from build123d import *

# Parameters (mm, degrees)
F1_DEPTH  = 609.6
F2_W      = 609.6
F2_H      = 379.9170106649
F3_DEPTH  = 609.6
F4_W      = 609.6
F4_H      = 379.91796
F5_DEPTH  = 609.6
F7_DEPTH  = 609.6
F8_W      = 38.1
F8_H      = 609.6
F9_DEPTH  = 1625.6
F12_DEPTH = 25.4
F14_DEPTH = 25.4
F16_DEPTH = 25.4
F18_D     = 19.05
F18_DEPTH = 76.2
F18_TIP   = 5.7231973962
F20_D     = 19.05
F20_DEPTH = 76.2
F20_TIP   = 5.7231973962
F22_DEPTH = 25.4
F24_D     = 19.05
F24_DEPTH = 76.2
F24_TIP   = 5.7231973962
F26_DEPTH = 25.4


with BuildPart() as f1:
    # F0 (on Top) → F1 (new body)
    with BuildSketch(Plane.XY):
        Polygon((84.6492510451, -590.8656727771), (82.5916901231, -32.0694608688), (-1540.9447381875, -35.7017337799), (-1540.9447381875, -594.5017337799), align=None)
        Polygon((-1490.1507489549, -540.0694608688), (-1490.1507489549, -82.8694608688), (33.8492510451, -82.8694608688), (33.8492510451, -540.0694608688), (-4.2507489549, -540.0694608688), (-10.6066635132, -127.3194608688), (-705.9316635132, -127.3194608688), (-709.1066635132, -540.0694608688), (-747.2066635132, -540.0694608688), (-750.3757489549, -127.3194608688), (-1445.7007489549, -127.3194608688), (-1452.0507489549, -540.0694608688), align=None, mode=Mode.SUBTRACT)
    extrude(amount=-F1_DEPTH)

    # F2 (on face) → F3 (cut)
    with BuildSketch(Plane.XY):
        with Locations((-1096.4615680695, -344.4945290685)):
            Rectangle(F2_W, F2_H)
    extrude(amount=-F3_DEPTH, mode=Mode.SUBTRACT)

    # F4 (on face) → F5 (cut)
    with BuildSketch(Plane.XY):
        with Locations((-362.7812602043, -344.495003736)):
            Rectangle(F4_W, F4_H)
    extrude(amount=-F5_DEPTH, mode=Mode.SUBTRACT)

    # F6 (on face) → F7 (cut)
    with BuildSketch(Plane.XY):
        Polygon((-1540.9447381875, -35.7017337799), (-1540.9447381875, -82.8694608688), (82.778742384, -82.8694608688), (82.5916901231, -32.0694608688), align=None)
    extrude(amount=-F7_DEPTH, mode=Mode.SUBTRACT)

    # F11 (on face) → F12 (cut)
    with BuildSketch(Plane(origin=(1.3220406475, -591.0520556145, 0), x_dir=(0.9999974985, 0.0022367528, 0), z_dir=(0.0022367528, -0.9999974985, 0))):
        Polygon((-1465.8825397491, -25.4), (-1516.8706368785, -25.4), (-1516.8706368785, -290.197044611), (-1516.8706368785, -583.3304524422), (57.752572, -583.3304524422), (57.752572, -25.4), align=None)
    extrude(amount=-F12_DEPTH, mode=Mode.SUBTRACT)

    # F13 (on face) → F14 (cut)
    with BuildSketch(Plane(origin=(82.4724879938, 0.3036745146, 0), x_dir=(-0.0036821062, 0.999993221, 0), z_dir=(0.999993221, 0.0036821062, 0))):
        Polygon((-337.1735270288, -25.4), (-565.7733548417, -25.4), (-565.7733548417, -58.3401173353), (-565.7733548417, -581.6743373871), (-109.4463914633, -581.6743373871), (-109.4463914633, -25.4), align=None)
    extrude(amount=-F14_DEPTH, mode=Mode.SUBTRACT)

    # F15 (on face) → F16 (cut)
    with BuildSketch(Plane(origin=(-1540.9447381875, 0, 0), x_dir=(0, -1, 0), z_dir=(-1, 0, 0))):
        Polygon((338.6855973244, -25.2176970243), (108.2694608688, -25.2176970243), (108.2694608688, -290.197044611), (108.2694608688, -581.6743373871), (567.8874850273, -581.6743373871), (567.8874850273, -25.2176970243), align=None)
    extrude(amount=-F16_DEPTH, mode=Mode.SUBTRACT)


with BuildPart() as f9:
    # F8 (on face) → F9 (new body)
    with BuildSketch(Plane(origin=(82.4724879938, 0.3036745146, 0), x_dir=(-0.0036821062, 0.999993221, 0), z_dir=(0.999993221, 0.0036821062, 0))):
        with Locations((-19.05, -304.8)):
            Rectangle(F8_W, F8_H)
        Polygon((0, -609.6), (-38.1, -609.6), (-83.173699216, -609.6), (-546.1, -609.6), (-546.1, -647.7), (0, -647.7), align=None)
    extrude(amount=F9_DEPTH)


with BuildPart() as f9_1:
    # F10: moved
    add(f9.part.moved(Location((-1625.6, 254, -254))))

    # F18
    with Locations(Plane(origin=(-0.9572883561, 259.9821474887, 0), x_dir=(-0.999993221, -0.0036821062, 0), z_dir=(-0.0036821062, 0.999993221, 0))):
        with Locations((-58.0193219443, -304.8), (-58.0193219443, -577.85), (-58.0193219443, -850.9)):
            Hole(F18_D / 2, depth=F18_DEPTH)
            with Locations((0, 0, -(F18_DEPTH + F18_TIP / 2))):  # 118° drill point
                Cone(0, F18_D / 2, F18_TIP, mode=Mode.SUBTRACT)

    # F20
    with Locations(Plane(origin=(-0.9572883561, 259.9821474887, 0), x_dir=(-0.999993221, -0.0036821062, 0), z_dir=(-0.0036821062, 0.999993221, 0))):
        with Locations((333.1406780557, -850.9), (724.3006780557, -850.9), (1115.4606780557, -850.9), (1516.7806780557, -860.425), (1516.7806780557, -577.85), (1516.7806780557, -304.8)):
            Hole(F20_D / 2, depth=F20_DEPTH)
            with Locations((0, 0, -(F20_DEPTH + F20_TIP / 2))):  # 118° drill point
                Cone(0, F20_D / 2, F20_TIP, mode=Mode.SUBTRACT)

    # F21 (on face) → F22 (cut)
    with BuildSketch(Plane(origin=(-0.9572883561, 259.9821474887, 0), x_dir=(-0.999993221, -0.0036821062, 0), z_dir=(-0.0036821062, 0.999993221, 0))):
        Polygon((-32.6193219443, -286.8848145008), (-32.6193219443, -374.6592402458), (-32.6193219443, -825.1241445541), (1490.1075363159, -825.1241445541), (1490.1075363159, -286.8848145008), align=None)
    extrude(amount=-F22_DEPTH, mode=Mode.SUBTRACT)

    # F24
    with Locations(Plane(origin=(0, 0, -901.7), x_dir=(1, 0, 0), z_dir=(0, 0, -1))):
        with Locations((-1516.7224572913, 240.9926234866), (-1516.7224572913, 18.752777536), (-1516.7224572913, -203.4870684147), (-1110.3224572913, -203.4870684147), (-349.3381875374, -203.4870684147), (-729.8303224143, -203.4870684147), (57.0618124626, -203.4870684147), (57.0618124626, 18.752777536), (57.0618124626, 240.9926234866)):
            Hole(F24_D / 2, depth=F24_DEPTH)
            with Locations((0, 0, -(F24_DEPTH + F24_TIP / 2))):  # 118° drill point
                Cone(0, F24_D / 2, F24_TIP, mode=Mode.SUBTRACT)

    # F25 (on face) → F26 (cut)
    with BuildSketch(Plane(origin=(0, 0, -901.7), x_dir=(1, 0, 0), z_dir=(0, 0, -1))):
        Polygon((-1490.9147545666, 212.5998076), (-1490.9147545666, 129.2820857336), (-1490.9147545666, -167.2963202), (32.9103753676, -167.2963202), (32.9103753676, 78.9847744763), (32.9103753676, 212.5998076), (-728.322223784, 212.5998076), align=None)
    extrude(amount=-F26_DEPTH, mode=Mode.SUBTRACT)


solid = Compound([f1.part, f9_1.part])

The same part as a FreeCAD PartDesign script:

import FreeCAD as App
import Part
import Sketcher
from FreeCAD import Vector
Q = App.Units.Quantity

doc = App.newDocument("Part")
body = doc.addObject("PartDesign::Body", "Body")

# Sketch on XY plane
sketch1 = body.newObject("Sketcher::SketchObject", "Sketch")
sketch1.AttachmentSupport = (doc.getObject("XY_Plane"), [""])
sketch1.MapMode = "FlatFace"
sketch1.addGeometry([
    Part.LineSegment(Vector(84.649251, -590.865673, 0), Vector(82.59169, -32.069461, 0)),  # 0
    Part.LineSegment(Vector(82.59169, -32.069461, 0), Vector(-1540.944738, -35.701734, 0)),  # 1
    Part.LineSegment(Vector(-1540.944738, -35.701734, 0), Vector(-1540.944738, -594.501734, 0)),  # 2
    Part.LineSegment(Vector(-1540.944738, -594.501734, 0), Vector(84.649251, -590.865673, 0)),  # 3
    Part.LineSegment(Vector(-1452.050749, -540.069461, 0), Vector(-1490.150749, -540.069461, 0)),  # 4
    Part.LineSegment(Vector(-1490.150749, -540.069461, 0), Vector(-1490.150749, -82.869461, 0)),  # 5
    Part.LineSegment(Vector(-1490.150749, -82.869461, 0), Vector(33.849251, -82.869461, 0)),  # 6
    Part.LineSegment(Vector(33.849251, -82.869461, 0), Vector(33.849251, -540.069461, 0)),  # 7
    Part.LineSegment(Vector(33.849251, -540.069461, 0), Vector(-4.250749, -540.069461, 0)),  # 8
    Part.LineSegment(Vector(-4.250749, -540.069461, 0), Vector(-10.606664, -127.319461, 0)),  # 9
    Part.LineSegment(Vector(-10.606664, -127.319461, 0), Vector(-705.931664, -127.319461, 0)),  # 10
    Part.LineSegment(Vector(-705.931664, -127.319461, 0), Vector(-709.106664, -540.069461, 0)),  # 11
    Part.LineSegment(Vector(-709.106664, -540.069461, 0), Vector(-747.206664, -540.069461, 0)),  # 12
    Part.LineSegment(Vector(-747.206664, -540.069461, 0), Vector(-750.375749, -127.319461, 0)),  # 13
    Part.LineSegment(Vector(-750.375749, -127.319461, 0), Vector(-1445.700749, -127.319461, 0)),  # 14
    Part.LineSegment(Vector(-1445.700749, -127.319461, 0), Vector(-1452.050749, -540.069461, 0)),  # 15
], False)
sketch1.addConstraint([
    Sketcher.Constraint("Coincident", 0, 2, 1, 1),
    Sketcher.Constraint("Coincident", 1, 2, 2, 1),
    Sketcher.Constraint("Coincident", 2, 2, 3, 1),
    Sketcher.Constraint("Coincident", 3, 2, 0, 1),
    Sketcher.Constraint("Coincident", 4, 2, 5, 1),
    Sketcher.Constraint("Coincident", 5, 2, 6, 1),
    Sketcher.Constraint("Coincident", 6, 2, 7, 1),
    Sketcher.Constraint("Coincident", 7, 2, 8, 1),
    Sketcher.Constraint("Coincident", 8, 2, 9, 1),
    Sketcher.Constraint("Coincident", 9, 2, 10, 1),
    Sketcher.Constraint("Coincident", 10, 2, 11, 1),
    Sketcher.Constraint("Coincident", 11, 2, 12, 1),
    Sketcher.Constraint("Coincident", 12, 2, 13, 1),
    Sketcher.Constraint("Coincident", 13, 2, 14, 1),
    Sketcher.Constraint("Coincident", 14, 2, 15, 1),
    Sketcher.Constraint("Coincident", 15, 2, 4, 1),
    Sketcher.Constraint("Vertical", 2),
    Sketcher.Constraint("Horizontal", 4),
    Sketcher.Constraint("Vertical", 5),
    Sketcher.Constraint("Horizontal", 6),
    Sketcher.Constraint("Vertical", 7),
    Sketcher.Constraint("Horizontal", 8),
    Sketcher.Constraint("Horizontal", 10),
    Sketcher.Constraint("Horizontal", 12),
    Sketcher.Constraint("Horizontal", 14),
    Sketcher.Constraint("DistanceX", 6, 1, 6, 2, Q("60 in")),
    Sketcher.Constraint("DistanceY", 2, 2, 2, 1, Q("22 in")),
    Sketcher.Constraint("DistanceY", 5, 1, 5, 2, Q("18 in")),
    Sketcher.Constraint("DistanceY", 7, 2, 7, 1, Q("18 in")),
    Sketcher.Constraint("Distance", 0, Q("22 in")),
    Sketcher.Constraint("DistanceX", 4, 2, 4, 1, Q("1.5 in")),
    Sketcher.Constraint("DistanceX", 8, 2, 8, 1, Q("1.5 in")),
    Sketcher.Constraint("DistanceX", 12, 2, 12, 1, Q("1.5 in")),
    Sketcher.Constraint("DistanceX", 4, 2, 3, 2, Q("62 in")),
    Sketcher.Constraint("DistanceY", 4, 2, 0, 2, Q("20 in")),
    Sketcher.Constraint("DistanceX", 10, 2, 10, 1, Q("27.375 in")),
    Sketcher.Constraint("DistanceX", 14, 2, 14, 1, Q("27.375 in")),
    Sketcher.Constraint("DistanceY", 9, 2, 6, 2, Q("1.75 in")),
    Sketcher.Constraint("DistanceY", 11, 2, 10, 2, Q("16.25 in")),
    Sketcher.Constraint("DistanceY", 12, 2, 13, 2, Q("16.25 in")),
    Sketcher.Constraint("DistanceX", 5, 2, 14, 2, Q("1.75 in")),
    Sketcher.Constraint("DistanceX", 11, 2, 10, 2, Q("0.125 in")),
    Sketcher.Constraint("Distance", 1, 1623.540491),
    Sketcher.Constraint("DistanceX", -1, 1, 0, 2, 82.59169),
    Sketcher.Constraint("DistanceY", 0, 2, -1, 1, 32.069461),
    Sketcher.Constraint("DistanceX", -1, 1, 3, 2, 84.649251),
    Sketcher.Constraint("DistanceY", 2, 2, 3, 2, 3.636061),
    Sketcher.Constraint("Distance", 9, 412.798934),
])
pad1 = body.newObject("PartDesign::Pad", "Pad")
pad1.Profile = sketch1
pad1.Length = Q("24 in")
pad1.Reversed = True

# Sketch on XY plane
sketch2 = body.newObject("Sketcher::SketchObject", "Sketch001")
sketch2.AttachmentSupport = (doc.getObject("XY_Plane"), [""])
sketch2.MapMode = "FlatFace"
sketch2.addGeometry([
    Part.LineSegment(Vector(-1401, -155, 0), Vector(-1401, -534, 0)),
    Part.LineSegment(Vector(-1401, -534, 0), Vector(-792, -534, 0)),
    Part.LineSegment(Vector(-792, -534, 0), Vector(-792, -155, 0)),
    Part.LineSegment(Vector(-792, -155, 0), Vector(-1401, -155, 0)),
], False)
sketch2.addConstraint([
    Sketcher.Constraint("Coincident", 0, 2, 1, 1),
    Sketcher.Constraint("Coincident", 1, 2, 2, 1),
    Sketcher.Constraint("Coincident", 2, 2, 3, 1),
    Sketcher.Constraint("Coincident", 3, 2, 0, 1),
    Sketcher.Constraint("Vertical", 0),
    Sketcher.Constraint("Horizontal", 1),
    Sketcher.Constraint("Vertical", 2),
    Sketcher.Constraint("Horizontal", 3),
    Sketcher.Constraint("DistanceX", 1, 1, 1, 2, Q("24 in")),
    Sketcher.Constraint("DistanceY", 0, 2, 0, 1, 379.917011),
    Sketcher.Constraint("DistanceX", 0, 2, -1, 1, 1401.261568),
    Sketcher.Constraint("DistanceY", 0, 2, -1, 1, 534.453034),
])
pocket1 = body.newObject("PartDesign::Pocket", "Pocket")
pocket1.Profile = sketch2
pocket1.Length = Q("24 in")

# Sketch on XY plane
sketch3 = body.newObject("Sketcher::SketchObject", "Sketch002")
sketch3.AttachmentSupport = (doc.getObject("XY_Plane"), [""])
sketch3.MapMode = "FlatFace"
sketch3.addGeometry([
    Part.LineSegment(Vector(-668, -155, 0), Vector(-668, -534, 0)),
    Part.LineSegment(Vector(-668, -534, 0), Vector(-58, -534, 0)),
    Part.LineSegment(Vector(-58, -534, 0), Vector(-58, -155, 0)),
    Part.LineSegment(Vector(-58, -155, 0), Vector(-668, -155, 0)),
], False)
sketch3.addConstraint([
    Sketcher.Constraint("Coincident", 0, 2, 1, 1),
    Sketcher.Constraint("Coincident", 1, 2, 2, 1),
    Sketcher.Constraint("Coincident", 2, 2, 3, 1),
    Sketcher.Constraint("Coincident", 3, 2, 0, 1),
    Sketcher.Constraint("Vertical", 0),
    Sketcher.Constraint("Horizontal", 1),
    Sketcher.Constraint("Vertical", 2),
    Sketcher.Constraint("Horizontal", 3),
    Sketcher.Constraint("DistanceX", 1, 1, 1, 2, Q("24 in")),
    Sketcher.Constraint("DistanceY", 0, 2, 0, 1, Q("14.9574 in")),
    Sketcher.Constraint("DistanceX", 0, 2, -1, 1, 667.58126),
    Sketcher.Constraint("DistanceY", 0, 2, -1, 1, 534.453984),
])
pocket2 = body.newObject("PartDesign::Pocket", "Pocket001")
pocket2.Profile = sketch3
pocket2.Length = Q("24 in")

# Sketch on XY plane
sketch4 = body.newObject("Sketcher::SketchObject", "Sketch003")
sketch4.AttachmentSupport = (doc.getObject("XY_Plane"), [""])
sketch4.MapMode = "FlatFace"
sketch4.addGeometry([
    Part.LineSegment(Vector(-1541, -36, 0), Vector(-1541, -83, 0)),
    Part.LineSegment(Vector(-1541, -83, 0), Vector(83, -83, 0)),
    Part.LineSegment(Vector(83, -83, 0), Vector(83, -32, 0)),
    Part.LineSegment(Vector(83, -32, 0), Vector(-1541, -36, 0)),
], False)
sketch4.addConstraint([
    Sketcher.Constraint("Coincident", 0, 2, 1, 1),
    Sketcher.Constraint("Coincident", 1, 2, 2, 1),
    Sketcher.Constraint("Coincident", 2, 2, 3, 1),
    Sketcher.Constraint("Coincident", 3, 2, 0, 1),
    Sketcher.Constraint("Vertical", 0),
    Sketcher.Constraint("Horizontal", 1),
    Sketcher.Constraint("DistanceY", 1, 2, 2, 2, Q("2 in")),
    Sketcher.Constraint("DistanceX", 1, 1, 1, 2, 1623.723481),
    Sketcher.Constraint("Distance", 3, 1623.540491),
    Sketcher.Constraint("DistanceY", 0, 2, 0, 1, 47.167727),
    Sketcher.Constraint("DistanceX", 0, 2, -1, 1, 1540.944738),
    Sketcher.Constraint("DistanceY", 0, 2, -1, 1, 82.869461),
])
pocket3 = body.newObject("PartDesign::Pocket", "Pocket002")
pocket3.Profile = sketch4
pocket3.Length = Q("24 in")

# Sketch on an angled plane
sketch5 = body.newObject("Sketcher::SketchObject", "Sketch004")
sketch5.Placement = App.Placement(Vector(1.322041, -591.052056, 0), App.Rotation(Vector(0.999997498, 0.002236753, 0), Vector(0, 0, 0.999999999), Vector(0.002236753, -0.999997498, 0), "ZXY"))
sketch5.addGeometry([
    Part.LineSegment(Vector(-1517, -25, 0), Vector(-1517, -583, 0)),
    Part.LineSegment(Vector(-1517, -583, 0), Vector(58, -583, 0)),
    Part.LineSegment(Vector(58, -583, 0), Vector(58, -25, 0)),
    Part.LineSegment(Vector(58, -25, 0), Vector(-1517, -25, 0)),
], False)
sketch5.addConstraint([
    Sketcher.Constraint("Coincident", 0, 2, 1, 1),
    Sketcher.Constraint("Coincident", 1, 2, 2, 1),
    Sketcher.Constraint("Coincident", 2, 2, 3, 1),
    Sketcher.Constraint("Coincident", 3, 2, 0, 1),
    Sketcher.Constraint("Vertical", 0),
    Sketcher.Constraint("Horizontal", 1),
    Sketcher.Constraint("Vertical", 2),
    Sketcher.Constraint("Horizontal", 3),
    Sketcher.Constraint("DistanceY", 2, 2, -1, 1, Q("1 in")),
    Sketcher.Constraint("DistanceY", 0, 2, 0, 1, 557.930451),
    Sketcher.Constraint("DistanceX", 1, 1, 1, 2, 1574.623207),
    Sketcher.Constraint("DistanceX", -1, 1, 1, 2, 57.752572),
])
pocket4 = body.newObject("PartDesign::Pocket", "Pocket003")
pocket4.Profile = sketch5
pocket4.Length = Q("1 in")

# Sketch on an angled plane
sketch6 = body.newObject("Sketcher::SketchObject", "Sketch005")
sketch6.Placement = App.Placement(Vector(82.472488, 0.303675, 0), App.Rotation(Vector(-0.003682106, 0.999993221, 0), Vector(0, 0, 1), Vector(0.999993221, 0.003682106, 0), "ZXY"))
sketch6.addGeometry([
    Part.LineSegment(Vector(-566, -25, 0), Vector(-566, -582, 0)),
    Part.LineSegment(Vector(-566, -582, 0), Vector(-109, -582, 0)),
    Part.LineSegment(Vector(-109, -582, 0), Vector(-109, -25, 0)),
    Part.LineSegment(Vector(-109, -25, 0), Vector(-566, -25, 0)),
], False)
sketch6.addConstraint([
    Sketcher.Constraint("Coincident", 0, 2, 1, 1),
    Sketcher.Constraint("Coincident", 1, 2, 2, 1),
    Sketcher.Constraint("Coincident", 2, 2, 3, 1),
    Sketcher.Constraint("Coincident", 3, 2, 0, 1),
    Sketcher.Constraint("Vertical", 0),
    Sketcher.Constraint("Horizontal", 1),
    Sketcher.Constraint("Vertical", 2),
    Sketcher.Constraint("Horizontal", 3),
    Sketcher.Constraint("DistanceY", 2, 2, -1, 1, Q("1 in")),
    Sketcher.Constraint("DistanceX", 1, 1, 1, 2, 456.326963),
    Sketcher.Constraint("DistanceY", 0, 2, 0, 1, 556.274337),
    Sketcher.Constraint("DistanceX", 1, 2, -1, 1, 109.446391),
])
pocket5 = body.newObject("PartDesign::Pocket", "Pocket004")
pocket5.Profile = sketch6
pocket5.Length = Q("1 in")

# Sketch on YZ plane
sketch7 = body.newObject("Sketcher::SketchObject", "Sketch006")
sketch7.AttachmentSupport = (doc.getObject("YZ_Plane"), [""])
sketch7.MapMode = "FlatFace"
sketch7.AttachmentOffset = App.Placement(Vector(0, 0, -1540.944738), App.Rotation())
sketch7.addGeometry([
    Part.LineSegment(Vector(-108, -25, 0), Vector(-108, -582, 0)),
    Part.LineSegment(Vector(-108, -582, 0), Vector(-568, -582, 0)),
    Part.LineSegment(Vector(-568, -582, 0), Vector(-568, -25, 0)),
    Part.LineSegment(Vector(-568, -25, 0), Vector(-108, -25, 0)),
], False)
sketch7.addConstraint([
    Sketcher.Constraint("Coincident", 0, 2, 1, 1),
    Sketcher.Constraint("Coincident", 1, 2, 2, 1),
    Sketcher.Constraint("Coincident", 2, 2, 3, 1),
    Sketcher.Constraint("Coincident", 3, 2, 0, 1),
    Sketcher.Constraint("Vertical", 0),
    Sketcher.Constraint("Horizontal", 1),
    Sketcher.Constraint("Vertical", 2),
    Sketcher.Constraint("Horizontal", 3),
    Sketcher.Constraint("DistanceY", 0, 2, 0, 1, 556.45664),
    Sketcher.Constraint("DistanceX", 1, 2, 1, 1, 459.618024),
    Sketcher.Constraint("DistanceX", 0, 2, -1, 1, 108.269461),
    Sketcher.Constraint("DistanceY", 0, 2, -1, 1, 581.674337),
])
pocket6 = body.newObject("PartDesign::Pocket", "Pocket005")
pocket6.Profile = sketch7
pocket6.Length = Q("1 in")
pocket6.Reversed = True
body2 = doc.addObject("PartDesign::Body", "Body001")

# Sketch on an angled plane
sketch8 = body2.newObject("Sketcher::SketchObject", "Sketch007")
sketch8.Placement = App.Placement(Vector(82.472488, 0.303675, 0), App.Rotation(Vector(-0.003682106, 0.999993221, 0), Vector(0, 0, 1), Vector(0.999993221, 0.003682106, 0), "ZXY"))
sketch8.addGeometry([
    Part.LineSegment(Vector(-38, 0, 0), Vector(-38, -610, 0)),  # 0
    Part.LineSegment(Vector(-38, -610, 0), Vector(-546, -610, 0)),  # 1
    Part.LineSegment(Vector(-546, -610, 0), Vector(-546, -648, 0)),  # 2
    Part.LineSegment(Vector(-546, -648, 0), Vector(0, -648, 0)),  # 3
    Part.LineSegment(Vector(0, -648, 0), Vector(0, 0, 0)),  # 4
    Part.LineSegment(Vector(0, 0, 0), Vector(-38, 0, 0)),  # 5
], False)
sketch8.addConstraint([
    Sketcher.Constraint("Coincident", 0, 2, 1, 1),
    Sketcher.Constraint("Coincident", 1, 2, 2, 1),
    Sketcher.Constraint("Coincident", 2, 2, 3, 1),
    Sketcher.Constraint("Coincident", 3, 2, 4, 1),
    Sketcher.Constraint("Coincident", 4, 2, 5, 1),
    Sketcher.Constraint("Coincident", 5, 2, 0, 1),
    Sketcher.Constraint("Vertical", 0),
    Sketcher.Constraint("Horizontal", 1),
    Sketcher.Constraint("Vertical", 2),
    Sketcher.Constraint("Horizontal", 3),
    Sketcher.Constraint("Vertical", 4),
    Sketcher.Constraint("Horizontal", 5),
    Sketcher.Constraint("Coincident", 4, 2, -1, 1),
    Sketcher.Constraint("Equal", 5, 2),
    Sketcher.Constraint("DistanceX", 1, 2, 1, 1, Q("20 in")),
    Sketcher.Constraint("DistanceY", 0, 2, 0, 1, Q("24 in")),
    Sketcher.Constraint("DistanceX", 3, 1, 3, 2, Q("21.5 in")),
])
pad2 = body2.newObject("PartDesign::Pad", "Pad001")
pad2.Profile = sketch8
pad2.Length = Q("64 in")
body3 = doc.addObject("PartDesign::Body", "Body002")
doc.recompute()

body2.Placement = App.Placement(Vector(-1625.6, 254, -254), App.Rotation(Vector(0, 0, 1), 0))
boolean = body3.newObject("PartDesign::Boolean", "Boolean")
boolean.Type = "Fuse"
boolean.addObjects([body2])

# Sketch on an angled plane
sketch9 = body3.newObject("Sketcher::SketchObject", "Sketch008")
sketch9.Placement = App.Placement(Vector(-0.957288, 259.982147, 0), App.Rotation(Vector(-0.999993221, -0.003682106, 0), Vector(0, 0, 1), Vector(-0.003682106, 0.999993221, 0), "ZXY"))
sketch9.addGeometry([
    Part.Circle(Vector(-58, -305, 0), Vector(0, 0, 1), 10),
    Part.Circle(Vector(-58, -578, 0), Vector(0, 0, 1), 10),
    Part.Circle(Vector(-58, -851, 0), Vector(0, 0, 1), 10),
], False)
sketch9.addConstraint([
    Sketcher.Constraint("Equal", 0, 1),
    Sketcher.Constraint("Equal", 1, 2),
    Sketcher.Constraint("Vertical", 0, 3, 1, 3),
    Sketcher.Constraint("Vertical", 1, 3, 2, 3),
    Sketcher.Constraint("Diameter", 0, Q("0.75 in")),
    Sketcher.Constraint("DistanceY", 0, 3, -1, 1, Q("12 in")),
    Sketcher.Constraint("DistanceY", 2, 3, -1, 1, Q("33.5 in")),
    Sketcher.Constraint("DistanceY", 1, 3, -1, 1, Q("22.75 in")),
    Sketcher.Constraint("DistanceX", 0, 3, -1, 1, 58.019322),
])
doc.recompute()
hole = body3.newObject("PartDesign::Hole", "Hole")
hole.Profile = sketch9
hole.ThreadType = "None"
hole.Diameter = Q("0.75 in")
hole.DepthType = "Dimension"
hole.Depth = Q("3 in")
hole.DrillPoint = "Angled"
hole.DrillPointAngle = 118

# Sketch on an angled plane
sketch10 = body3.newObject("Sketcher::SketchObject", "Sketch009")
sketch10.Placement = App.Placement(Vector(-0.957288, 259.982147, 0), App.Rotation(Vector(-0.999993221, -0.003682106, 0), Vector(0, 0, 1), Vector(-0.003682106, 0.999993221, 0), "ZXY"))
sketch10.addGeometry([
    Part.Circle(Vector(333, -851, 0), Vector(0, 0, 1), 10),  # 0
    Part.Circle(Vector(724, -851, 0), Vector(0, 0, 1), 10),  # 1
    Part.Circle(Vector(1115, -851, 0), Vector(0, 0, 1), 10),  # 2
    Part.Circle(Vector(1517, -860, 0), Vector(0, 0, 1), 10),  # 3
    Part.Circle(Vector(1517, -578, 0), Vector(0, 0, 1), 10),  # 4
    Part.Circle(Vector(1517, -305, 0), Vector(0, 0, 1), 10),  # 5
], False)
sketch10.addConstraint([
    Sketcher.Constraint("Equal", 0, 1),
    Sketcher.Constraint("Equal", 1, 2),
    Sketcher.Constraint("Equal", 2, 3),
    Sketcher.Constraint("Equal", 3, 4),
    Sketcher.Constraint("Equal", 4, 5),
    Sketcher.Constraint("Horizontal", 0, 3, 1, 3),
    Sketcher.Constraint("Horizontal", 1, 3, 2, 3),
    Sketcher.Constraint("Vertical", 3, 3, 4, 3),
    Sketcher.Constraint("Vertical", 4, 3, 5, 3),
    Sketcher.Constraint("Diameter", 0, Q("0.75 in")),
    Sketcher.Constraint("DistanceY", 5, 3, -1, 1, Q("12 in")),
    Sketcher.Constraint("DistanceY", 0, 3, -1, 1, Q("33.5 in")),
    Sketcher.Constraint("DistanceX", 0, 3, 1, 3, Q("15.4 in")),
    Sketcher.Constraint("DistanceX", 1, 3, 2, 3, Q("15.4 in")),
    Sketcher.Constraint("DistanceX", 2, 3, 3, 3, Q("15.8 in")),
    Sketcher.Constraint("DistanceY", 4, 3, -1, 1, Q("22.75 in")),
    Sketcher.Constraint("DistanceY", 3, 3, -1, 1, Q("33.875 in")),
    Sketcher.Constraint("DistanceX", -1, 1, 0, 3, 333.140678),
])
doc.recompute()
hole2 = body3.newObject("PartDesign::Hole", "Hole001")
hole2.Profile = sketch10
hole2.ThreadType = "None"
hole2.Diameter = Q("0.75 in")
hole2.DepthType = "Dimension"
hole2.Depth = Q("3 in")
hole2.DrillPoint = "Angled"
hole2.DrillPointAngle = 118

# Sketch on an angled plane
sketch11 = body3.newObject("Sketcher::SketchObject", "Sketch010")
sketch11.Placement = App.Placement(Vector(-0.957288, 259.982147, 0), App.Rotation(Vector(-0.999993221, -0.003682106, 0), Vector(0, 0, 1), Vector(-0.003682106, 0.999993221, 0), "ZXY"))
sketch11.addGeometry([
    Part.LineSegment(Vector(-33, -287, 0), Vector(-33, -825, 0)),
    Part.LineSegment(Vector(-33, -825, 0), Vector(1490, -825, 0)),
    Part.LineSegment(Vector(1490, -825, 0), Vector(1490, -287, 0)),
    Part.LineSegment(Vector(1490, -287, 0), Vector(-33, -287, 0)),
], False)
sketch11.addConstraint([
    Sketcher.Constraint("Coincident", 0, 2, 1, 1),
    Sketcher.Constraint("Coincident", 1, 2, 2, 1),
    Sketcher.Constraint("Coincident", 2, 2, 3, 1),
    Sketcher.Constraint("Coincident", 3, 2, 0, 1),
    Sketcher.Constraint("Vertical", 0),
    Sketcher.Constraint("Horizontal", 1),
    Sketcher.Constraint("Vertical", 2),
    Sketcher.Constraint("Horizontal", 3),
    Sketcher.Constraint("DistanceX", 1, 1, 1, 2, 1522.726858),
    Sketcher.Constraint("DistanceY", 0, 2, 0, 1, 538.23933),
    Sketcher.Constraint("DistanceX", 0, 2, -1, 1, 32.619322),
    Sketcher.Constraint("DistanceY", 0, 2, -1, 1, 825.124144),
])
pocket7 = body3.newObject("PartDesign::Pocket", "Pocket006")
pocket7.Profile = sketch11
pocket7.Length = Q("1 in")

# Sketch on XY plane
sketch12 = body3.newObject("Sketcher::SketchObject", "Sketch011")
sketch12.AttachmentSupport = (doc.getObject("XY_Plane002"), [""])
sketch12.MapMode = "FlatFace"
sketch12.AttachmentOffset = App.Placement(Vector(0, 0, -35.5 * 25.4), App.Rotation())
sketch12.addGeometry([
    Part.Circle(Vector(-1517, -241, 0), Vector(0, 0, 1), 10),  # 0
    Part.Circle(Vector(-1517, -19, 0), Vector(0, 0, 1), 10),  # 1
    Part.Circle(Vector(-1517, 203, 0), Vector(0, 0, 1), 10),  # 2
    Part.Circle(Vector(-1110, 203, 0), Vector(0, 0, 1), 10),  # 3
    Part.Circle(Vector(-349, 203, 0), Vector(0, 0, 1), 10),  # 4
    Part.Circle(Vector(-730, 203, 0), Vector(0, 0, 1), 10),  # 5
    Part.Circle(Vector(57, 203, 0), Vector(0, 0, 1), 10),  # 6
    Part.Circle(Vector(57, -19, 0), Vector(0, 0, 1), 10),  # 7
    Part.Circle(Vector(57, -241, 0), Vector(0, 0, 1), 10),  # 8
], False)
sketch12.addConstraint([
    Sketcher.Constraint("Equal", 0, 1),
    Sketcher.Constraint("Equal", 1, 2),
    Sketcher.Constraint("Equal", 2, 3),
    Sketcher.Constraint("Equal", 3, 4),
    Sketcher.Constraint("Equal", 4, 5),
    Sketcher.Constraint("Equal", 5, 6),
    Sketcher.Constraint("Equal", 6, 7),
    Sketcher.Constraint("Equal", 7, 8),
    Sketcher.Constraint("Horizontal", 2, 3, 3, 3),
    Sketcher.Constraint("Horizontal", 3, 3, 4, 3),
    Sketcher.Constraint("Horizontal", 4, 3, 5, 3),
    Sketcher.Constraint("Horizontal", 5, 3, 6, 3),
    Sketcher.Constraint("Horizontal", 1, 3, 7, 3),
    Sketcher.Constraint("Horizontal", 0, 3, 8, 3),
    Sketcher.Constraint("Vertical", 0, 3, 1, 3),
    Sketcher.Constraint("Vertical", 1, 3, 2, 3),
    Sketcher.Constraint("Vertical", 6, 3, 7, 3),
    Sketcher.Constraint("Vertical", 7, 3, 8, 3),
    Sketcher.Constraint("Diameter", 0, Q("0.75 in")),
    Sketcher.Constraint("DistanceX", 2, 3, 3, 3, Q("16 in")),
    Sketcher.Constraint("DistanceX", 4, 3, 6, 3, Q("16 in")),
    Sketcher.Constraint("DistanceY", -1, 1, 2, 3, 203.487068),
    Sketcher.Constraint("DistanceY", 0, 3, 2, 3, 444.479692),
    Sketcher.Constraint("DistanceX", 3, 3, 4, 3, 760.98427),
    Sketcher.Constraint("DistanceX", 0, 3, -1, 1, 1516.722457),
    Sketcher.Constraint("DistanceY", 1, 3, -1, 1, 18.752778),
    Sketcher.Constraint("DistanceX", 5, 3, -1, 1, 729.830322),
])
doc.recompute()
hole3 = body3.newObject("PartDesign::Hole", "Hole002")
hole3.Profile = sketch12
hole3.ThreadType = "None"
hole3.Diameter = Q("0.75 in")
hole3.DepthType = "Dimension"
hole3.Depth = Q("3 in")
hole3.DrillPoint = "Angled"
hole3.DrillPointAngle = 118
hole3.Reversed = True

# Sketch on XY plane
sketch13 = body3.newObject("Sketcher::SketchObject", "Sketch012")
sketch13.AttachmentSupport = (doc.getObject("XY_Plane002"), [""])
sketch13.MapMode = "FlatFace"
sketch13.AttachmentOffset = App.Placement(Vector(0, 0, -35.5 * 25.4), App.Rotation())
sketch13.addGeometry([
    Part.LineSegment(Vector(-1491, -213, 0), Vector(-1491, 167, 0)),
    Part.LineSegment(Vector(-1491, 167, 0), Vector(33, 167, 0)),
    Part.LineSegment(Vector(33, 167, 0), Vector(33, -213, 0)),
    Part.LineSegment(Vector(33, -213, 0), Vector(-1491, -213, 0)),
], False)
sketch13.addConstraint([
    Sketcher.Constraint("Coincident", 0, 2, 1, 1),
    Sketcher.Constraint("Coincident", 1, 2, 2, 1),
    Sketcher.Constraint("Coincident", 2, 2, 3, 1),
    Sketcher.Constraint("Coincident", 3, 2, 0, 1),
    Sketcher.Constraint("Vertical", 0),
    Sketcher.Constraint("Horizontal", 1),
    Sketcher.Constraint("Vertical", 2),
    Sketcher.Constraint("Horizontal", 3),
    Sketcher.Constraint("DistanceX", 1, 1, 1, 2, 1523.82513),
    Sketcher.Constraint("DistanceY", 0, 1, 0, 2, 379.896128),
    Sketcher.Constraint("DistanceY", -1, 1, 0, 2, 167.29632),
    Sketcher.Constraint("DistanceX", 0, 2, -1, 1, 1490.914755),
])
pocket8 = body3.newObject("PartDesign::Pocket", "Pocket007")
pocket8.Profile = sketch13
pocket8.Length = Q("1 in")
pocket8.Reversed = True

doc.recompute()
